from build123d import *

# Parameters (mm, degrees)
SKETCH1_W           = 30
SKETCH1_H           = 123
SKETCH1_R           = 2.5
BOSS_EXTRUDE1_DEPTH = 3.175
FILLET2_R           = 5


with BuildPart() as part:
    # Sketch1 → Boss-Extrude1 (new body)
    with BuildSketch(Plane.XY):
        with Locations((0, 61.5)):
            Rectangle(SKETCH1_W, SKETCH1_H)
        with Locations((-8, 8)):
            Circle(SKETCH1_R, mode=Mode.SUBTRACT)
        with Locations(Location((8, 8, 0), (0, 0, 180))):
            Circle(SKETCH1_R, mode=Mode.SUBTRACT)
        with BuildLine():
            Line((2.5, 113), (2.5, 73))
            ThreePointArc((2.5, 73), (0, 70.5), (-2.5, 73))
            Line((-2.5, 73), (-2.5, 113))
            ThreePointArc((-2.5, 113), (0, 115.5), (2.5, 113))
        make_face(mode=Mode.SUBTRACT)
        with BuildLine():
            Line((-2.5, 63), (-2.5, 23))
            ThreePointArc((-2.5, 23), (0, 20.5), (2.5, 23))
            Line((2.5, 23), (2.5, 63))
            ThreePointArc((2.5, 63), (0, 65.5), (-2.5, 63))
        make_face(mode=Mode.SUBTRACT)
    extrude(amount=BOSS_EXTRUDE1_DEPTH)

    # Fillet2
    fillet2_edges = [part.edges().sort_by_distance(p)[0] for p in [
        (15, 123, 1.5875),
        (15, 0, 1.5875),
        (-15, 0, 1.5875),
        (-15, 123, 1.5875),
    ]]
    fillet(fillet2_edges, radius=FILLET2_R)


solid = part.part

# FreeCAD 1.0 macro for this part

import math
import FreeCAD as App
import Part
import Sketcher
Q = App.Units.Quantity


def edges_at(feature, points):
    """Names of the edges that pass closest to the given points."""
    edges = feature.Shape.Edges
    near = lambda p: min(range(len(edges)), key=lambda i: edges[i].distToShape(Part.Vertex(*p))[0])
    return sorted({f"Edge{near(p) + 1}" for p in points})


def add_polygon(sketch, points):
    """Adds a closed chain of lines whose ends are joined by coincident constraints."""
    first, n = sketch.GeometryCount, len(points)
    for a, b in zip(points, points[1:] + points[:1]):
        sketch.addGeometry(Part.LineSegment(App.Vector(*a, 0), App.Vector(*b, 0)), False)
    for i in range(n):
        sketch.addConstraint(Sketcher.Constraint("Coincident", first + i, 2, first + (i + 1) % n, 1))

doc = App.newDocument("Part")
body = doc.addObject("PartDesign::Body", "Body")

# Sketch on XY plane
sketch1 = body.newObject("Sketcher::SketchObject", "Sketch")
sketch1.AttachmentSupport = (doc.getObject("XY_Plane"), [""])
sketch1.MapMode = "FlatFace"
add_polygon(sketch1, [(-15, 123), (-15, 0), (15, 0), (15, 123)])  # lines 0-3
sketch1.addGeometry(Part.Circle(App.Vector(-8, 8, 0), App.Vector(0, 0, 1), 2.5), False)  # 4
sketch1.addGeometry(Part.Circle(App.Vector(8, 8, 0), App.Vector(0, 0, 1), 2.5), False)  # 5
sketch1.addGeometry(Part.LineSegment(App.Vector(-2.5, 23, 0), App.Vector(-2.5, 63, 0)), False)  # 6
sketch1.addGeometry(Part.ArcOfCircle(Part.Circle(App.Vector(0, 63, 0), App.Vector(0, 0, 1), 2.5), math.radians(0), math.radians(180)), False)  # 7
sketch1.addGeometry(Part.LineSegment(App.Vector(2.5, 63, 0), App.Vector(2.5, 23, 0)), False)  # 8
sketch1.addGeometry(Part.ArcOfCircle(Part.Circle(App.Vector(0, 23, 0), App.Vector(0, 0, 1), 2.5), math.radians(180), math.radians(360)), False)  # 9
sketch1.addGeometry(Part.ArcOfCircle(Part.Circle(App.Vector(0, 113, 0), App.Vector(0, 0, 1), 2.5), math.radians(0), math.radians(180)), False)  # 10
sketch1.addGeometry(Part.LineSegment(App.Vector(2.5, 113, 0), App.Vector(2.5, 73, 0)), False)  # 11
sketch1.addGeometry(Part.ArcOfCircle(Part.Circle(App.Vector(0, 73, 0), App.Vector(0, 0, 1), 2.5), math.radians(180), math.radians(360)), False)  # 12
sketch1.addGeometry(Part.LineSegment(App.Vector(-2.5, 73, 0), App.Vector(-2.5, 113, 0)), False)  # 13
sketch1.addConstraint([
    Sketcher.Constraint("Tangent", 6, 2, 7, 2),
    Sketcher.Constraint("Tangent", 7, 1, 8, 1),
    Sketcher.Constraint("Tangent", 8, 2, 9, 2),
    Sketcher.Constraint("Tangent", 9, 1, 6, 1),
    Sketcher.Constraint("Tangent", 10, 1, 11, 1),
    Sketcher.Constraint("Tangent", 11, 2, 12, 2),
    Sketcher.Constraint("Tangent", 12, 1, 13, 1),
    Sketcher.Constraint("Tangent", 13, 2, 10, 2),
    Sketcher.Constraint("Vertical", 0),
    Sketcher.Constraint("Horizontal", 1),
    Sketcher.Constraint("Vertical", 2),
    Sketcher.Constraint("Horizontal", 3),
    Sketcher.Constraint("Vertical", 6),
    Sketcher.Constraint("Vertical", 8),
    Sketcher.Constraint("Vertical", 11),
    Sketcher.Constraint("Vertical", 13),
    Sketcher.Constraint("Equal", 4, 5),
    Sketcher.Constraint("Equal", 5, 7),
    Sketcher.Constraint("Equal", 9, 10),
    Sketcher.Constraint("Symmetric", 0, 2, 1, 2, -1, 1),
    Sketcher.Constraint("Symmetric", 4, 3, 5, 3, -2),
    Sketcher.Constraint("PointOnObject", 7, 3, -2),
    Sketcher.Constraint("PointOnObject", 10, 3, -2),
    Sketcher.Constraint("Equal", 8, 11),
    Sketcher.Constraint("Diameter", 4, Q("5 mm")),
    Sketcher.Constraint("DistanceX", 1, 1, 1, 2, Q("30 mm")),
    Sketcher.Constraint("DistanceY", 0, 2, 0, 1, Q("123 mm")),
    Sketcher.Constraint("DistanceY", 6, 1, 6, 2, Q("40 mm")),
    Sketcher.Constraint("DistanceX", 4, 3, -1, 1, Q("8 mm")),
    Sketcher.Constraint("DistanceY", -1, 1, 4, 3, Q("8 mm")),
    Sketcher.Constraint("DistanceY", -1, 1, 7, 3, Q("63 mm")),
    Sketcher.Constraint("DistanceY", -1, 1, 10, 3, Q("113 mm")),
])
pad1 = body.newObject("PartDesign::Pad", "Pad")
pad1.Profile = sketch1
pad1.Length = 3.175
doc.recompute()

fillet = body.newObject("PartDesign::Fillet", "Fillet")
fillet.Base = (pad1, edges_at(pad1, [
    (15, 123, 1.587),
    (15, 0, 1.587),
    (-15, 0, 1.587),
    (-15, 123, 1.587),
]))
fillet.Radius = 5

doc.recompute()
